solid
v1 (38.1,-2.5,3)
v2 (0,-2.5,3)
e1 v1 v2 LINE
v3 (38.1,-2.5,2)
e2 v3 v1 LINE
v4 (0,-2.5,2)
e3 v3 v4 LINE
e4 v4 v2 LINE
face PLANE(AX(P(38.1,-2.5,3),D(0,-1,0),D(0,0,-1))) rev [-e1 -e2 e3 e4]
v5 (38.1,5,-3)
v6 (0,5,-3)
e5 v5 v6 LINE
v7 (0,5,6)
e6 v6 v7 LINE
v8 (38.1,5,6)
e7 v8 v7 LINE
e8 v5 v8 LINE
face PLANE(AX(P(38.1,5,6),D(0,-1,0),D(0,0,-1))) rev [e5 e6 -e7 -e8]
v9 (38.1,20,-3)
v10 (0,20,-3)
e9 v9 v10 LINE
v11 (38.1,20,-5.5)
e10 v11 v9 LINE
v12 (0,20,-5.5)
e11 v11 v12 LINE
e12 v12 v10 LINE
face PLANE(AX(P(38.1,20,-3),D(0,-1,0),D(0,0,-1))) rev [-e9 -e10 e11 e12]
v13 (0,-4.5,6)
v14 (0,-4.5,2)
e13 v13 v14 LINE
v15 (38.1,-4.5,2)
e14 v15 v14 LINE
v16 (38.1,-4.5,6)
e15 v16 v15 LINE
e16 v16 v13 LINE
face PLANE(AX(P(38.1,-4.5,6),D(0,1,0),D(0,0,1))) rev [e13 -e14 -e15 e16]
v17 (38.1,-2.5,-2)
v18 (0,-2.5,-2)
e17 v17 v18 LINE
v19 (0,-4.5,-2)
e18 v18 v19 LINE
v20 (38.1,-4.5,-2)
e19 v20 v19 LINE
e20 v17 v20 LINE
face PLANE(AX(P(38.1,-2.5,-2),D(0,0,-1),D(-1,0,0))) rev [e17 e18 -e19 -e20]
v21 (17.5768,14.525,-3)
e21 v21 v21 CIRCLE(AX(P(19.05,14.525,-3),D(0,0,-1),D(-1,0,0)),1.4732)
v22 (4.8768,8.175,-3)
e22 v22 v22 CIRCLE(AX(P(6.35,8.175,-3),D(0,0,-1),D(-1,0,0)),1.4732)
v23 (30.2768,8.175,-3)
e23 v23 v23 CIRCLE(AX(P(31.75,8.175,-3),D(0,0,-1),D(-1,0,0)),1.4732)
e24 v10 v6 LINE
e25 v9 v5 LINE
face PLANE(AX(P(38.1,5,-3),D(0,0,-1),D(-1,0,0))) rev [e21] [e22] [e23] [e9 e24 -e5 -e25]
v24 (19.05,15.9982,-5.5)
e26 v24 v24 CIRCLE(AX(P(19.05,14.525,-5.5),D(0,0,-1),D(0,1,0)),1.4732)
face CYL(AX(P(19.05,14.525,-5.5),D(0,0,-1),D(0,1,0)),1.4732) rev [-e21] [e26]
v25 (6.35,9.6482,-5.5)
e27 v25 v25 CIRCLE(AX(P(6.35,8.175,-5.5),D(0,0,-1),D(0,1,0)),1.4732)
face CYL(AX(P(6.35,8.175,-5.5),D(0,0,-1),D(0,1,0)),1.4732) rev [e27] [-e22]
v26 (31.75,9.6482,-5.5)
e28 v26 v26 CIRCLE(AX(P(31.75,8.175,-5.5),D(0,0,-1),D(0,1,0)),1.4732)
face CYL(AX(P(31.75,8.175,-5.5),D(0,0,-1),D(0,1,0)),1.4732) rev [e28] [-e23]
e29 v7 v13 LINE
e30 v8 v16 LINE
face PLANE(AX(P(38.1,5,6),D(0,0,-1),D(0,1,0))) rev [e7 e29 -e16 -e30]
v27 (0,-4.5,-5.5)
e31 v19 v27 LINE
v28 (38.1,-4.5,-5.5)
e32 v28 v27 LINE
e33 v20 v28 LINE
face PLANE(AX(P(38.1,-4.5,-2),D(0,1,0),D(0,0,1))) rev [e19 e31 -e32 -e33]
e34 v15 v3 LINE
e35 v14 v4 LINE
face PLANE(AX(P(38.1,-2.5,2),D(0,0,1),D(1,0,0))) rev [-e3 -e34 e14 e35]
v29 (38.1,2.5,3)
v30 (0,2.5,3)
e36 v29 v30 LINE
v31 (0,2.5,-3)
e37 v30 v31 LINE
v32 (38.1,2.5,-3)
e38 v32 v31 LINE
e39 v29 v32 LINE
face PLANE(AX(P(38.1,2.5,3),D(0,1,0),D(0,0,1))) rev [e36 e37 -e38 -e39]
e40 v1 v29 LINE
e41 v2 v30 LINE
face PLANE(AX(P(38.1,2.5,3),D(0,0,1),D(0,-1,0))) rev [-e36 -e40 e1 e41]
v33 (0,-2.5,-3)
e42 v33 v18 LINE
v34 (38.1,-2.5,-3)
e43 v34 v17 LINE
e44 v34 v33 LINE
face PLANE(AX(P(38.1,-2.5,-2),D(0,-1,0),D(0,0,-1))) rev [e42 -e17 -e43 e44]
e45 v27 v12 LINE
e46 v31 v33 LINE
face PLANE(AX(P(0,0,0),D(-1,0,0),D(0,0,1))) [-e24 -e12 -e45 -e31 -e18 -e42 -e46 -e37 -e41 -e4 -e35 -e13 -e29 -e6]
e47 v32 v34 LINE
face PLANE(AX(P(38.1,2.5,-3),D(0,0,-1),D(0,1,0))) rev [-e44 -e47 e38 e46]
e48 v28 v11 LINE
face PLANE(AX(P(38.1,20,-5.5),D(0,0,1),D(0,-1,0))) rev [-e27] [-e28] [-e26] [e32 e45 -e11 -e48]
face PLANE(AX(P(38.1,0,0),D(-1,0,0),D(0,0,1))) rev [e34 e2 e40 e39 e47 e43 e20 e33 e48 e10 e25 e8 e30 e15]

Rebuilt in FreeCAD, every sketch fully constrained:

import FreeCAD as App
import Part
import Sketcher

V = App.Vector
Q = App.Units.Quantity

doc = App.newDocument("Part")
params = doc.addObject("Spreadsheet::Sheet", "Params")
for row, (alias, value) in enumerate([
    ("sketch1_width", "2 mm"),
    ("sketch1_width2", "5 mm"),
    ("sketch1_width3", "15 mm"),
    ("sketch1_height", "4 mm"),
    ("sketch1_height2", "1 mm"),
    ("pad1_length", "38.1 mm"),
    ("hole_diameter", "2.9464 mm"),
    ("hole_depth", "6.35 mm"),
], start=1):
    params.set(f"A{row}", alias)
    params.set(f"B{row}", "=" + value)
    params.setAlias(f"B{row}", alias)

body = doc.addObject("PartDesign::Body", "Body")

# Sketch on YZ plane
sketch1 = doc.addObject("Sketcher::SketchObject", "Sketch")
body.addObject(sketch1)
sketch1.AttachmentSupport = (doc.YZ_Plane, [""])
sketch1.MapMode = "FlatFace"
sketch1.addGeometry([
    Part.LineSegment(V(-4.5, 6, 0), V(-4.5, 2, 0)),  # 0
    Part.LineSegment(V(-4.5, 2, 0), V(-2.5, 2, 0)),  # 1
    Part.LineSegment(V(-2.5, 2, 0), V(-2.5, 3, 0)),  # 2
    Part.LineSegment(V(-2.5, 3, 0), V(2.5, 3, 0)),  # 3
    Part.LineSegment(V(2.5, 3, 0), V(2.5, -3, 0)),  # 4
    Part.LineSegment(V(2.5, -3, 0), V(-2.5, -3, 0)),  # 5
    Part.LineSegment(V(-2.5, -3, 0), V(-2.5, -2, 0)),  # 6
    Part.LineSegment(V(-2.5, -2, 0), V(-4.5, -2, 0)),  # 7
    Part.LineSegment(V(-4.5, -2, 0), V(-4.5, -5.5, 0)),  # 8
    Part.LineSegment(V(-4.5, -5.5, 0), V(20, -5.5, 0)),  # 9
    Part.LineSegment(V(20, -5.5, 0), V(20, -3, 0)),  # 10
    Part.LineSegment(V(20, -3, 0), V(5, -3, 0)),  # 11
    Part.LineSegment(V(5, -3, 0), V(5, 6, 0)),  # 12
    Part.LineSegment(V(5, 6, 0), V(-4.5, 6, 0)),  # 13
], False)
sketch1.addConstraint([
    Sketcher.Constraint("Coincident", 0, 2, 1, 1),
    Sketcher.Constraint("Coincident", 1, 2, 2, 1),
    Sketcher.Constraint("Coincident", 2, 2, 3, 1),
    Sketcher.Constraint("Coincident", 3, 2, 4, 1),
    Sketcher.Constraint("Coincident", 4, 2, 5, 1),
    Sketcher.Constraint("Coincident", 5, 2, 6, 1),
    Sketcher.Constraint("Coincident", 6, 2, 7, 1),
    Sketcher.Constraint("Coincident", 7, 2, 8, 1),
    Sketcher.Constraint("Coincident", 8, 2, 9, 1),
    Sketcher.Constraint("Coincident", 9, 2, 10, 1),
    Sketcher.Constraint("Coincident", 10, 2, 11, 1),
    Sketcher.Constraint("Coincident", 11, 2, 12, 1),
    Sketcher.Constraint("Coincident", 12, 2, 13, 1),
    Sketcher.Constraint("Coincident", 13, 2, 0, 1),
    Sketcher.Constraint("Vertical", 0),
    Sketcher.Constraint("Horizontal", 1),
    Sketcher.Constraint("Vertical", 2),
    Sketcher.Constraint("Horizontal", 3),
    Sketcher.Constraint("Vertical", 4),
    Sketcher.Constraint("Horizontal", 5),
    Sketcher.Constraint("Vertical", 6),
    Sketcher.Constraint("Horizontal", 7),
    Sketcher.Constraint("Vertical", 8),
    Sketcher.Constraint("Horizontal", 9),
    Sketcher.Constraint("Vertical", 10),
    Sketcher.Constraint("Horizontal", 11),
    Sketcher.Constraint("Vertical", 12),
    Sketcher.Constraint("Horizontal", 13),
    Sketcher.Constraint("Symmetric", 2, 2, 4, 2, -1, 1),
    Sketcher.Constraint("Symmetric", 1, 2, 6, 2, -1),
    Sketcher.Constraint("Horizontal", 5, 2, 10, 2),
    Sketcher.Constraint("Vertical", 0, 2, 7, 2),
    Sketcher.Constraint("DistanceX", 1, 1, 1, 2, Q("2 mm")),
    Sketcher.Constraint("DistanceX", 3, 1, 3, 2, Q("5 mm")),
    Sketcher.Constraint("DistanceX", 11, 2, 11, 1, Q("15 mm")),
    Sketcher.Constraint("DistanceY", 0, 2, 0, 1, Q("4 mm")),
    Sketcher.Constraint("DistanceY", 2, 1, 2, 2, Q("1 mm")),
    Sketcher.Constraint("DistanceY", 4, 2, 4, 1, Q("6 mm")),
    Sketcher.Constraint("DistanceX", 9, 1, 9, 2, Q("24.5 mm")),
    Sketcher.Constraint("DistanceY", 8, 2, 8, 1, Q("3.5 mm")),
])
sketch1.setExpression("Constraints[32]", "Params.sketch1_width")
sketch1.setExpression("Constraints[33]", "Params.sketch1_width2")
sketch1.setExpression("Constraints[34]", "Params.sketch1_width3")
sketch1.setExpression("Constraints[35]", "Params.sketch1_height")
sketch1.setExpression("Constraints[36]", "Params.sketch1_height2")
pad1 = doc.addObject("PartDesign::Pad", "Pad")
body.addObject(pad1)
pad1.Profile = sketch1
pad1.setExpression("Length", "Params.pad1_length")

# Sketch on XY plane
sketch2 = doc.addObject("Sketcher::SketchObject", "Sketch001")
body.addObject(sketch2)
sketch2.AttachmentSupport = (doc.XY_Plane, [""])
sketch2.MapMode = "FlatFace"
sketch2.AttachmentOffset = App.Placement(V(0, 0, -5.5), App.Rotation())
sketch2.addGeometry([
    Part.Circle(V(19.05, 14.525, 0), V(0, 0, 1), 1.4732),
    Part.Circle(V(31.75, 8.175, 0), V(0, 0, 1), 1.4732),
    Part.Circle(V(6.35, 8.175, 0), V(0, 0, 1), 1.4732),
], False)
sketch2.addConstraint([
    Sketcher.Constraint("Equal", 0, 1),
    Sketcher.Constraint("Equal", 1, 2),
    Sketcher.Constraint("Horizontal", 1, 3, 2, 3),
    Sketcher.Constraint("Diameter", 0, Q("2.9464 mm")),
    Sketcher.Constraint("DistanceX", 0, 3, 1, 3, Q("12.7 mm")),
    Sketcher.Constraint("DistanceX", 2, 3, 0, 3, Q("12.7 mm")),
    Sketcher.Constraint("DistanceX", -1, 1, 0, 3, Q("19.05 mm")),
    Sketcher.Constraint("DistanceY", 1, 3, 0, 3, Q("6.35 mm")),
    Sketcher.Constraint("DistanceY", -1, 1, 0, 3, Q("14.525 mm")),
])
doc.recompute()
hole = doc.addObject("PartDesign::Hole", "Hole")
body.addObject(hole)
hole.Profile = sketch2
hole.ThreadType = "None"
hole.setExpression("Diameter", "Params.hole_diameter")
hole.DepthType = "Dimension"
hole.setExpression("Depth", "Params.hole_depth")
hole.DrillPoint = "Angled"
hole.DrillPointAngle = 118
hole.Reversed = True

doc.recompute()
